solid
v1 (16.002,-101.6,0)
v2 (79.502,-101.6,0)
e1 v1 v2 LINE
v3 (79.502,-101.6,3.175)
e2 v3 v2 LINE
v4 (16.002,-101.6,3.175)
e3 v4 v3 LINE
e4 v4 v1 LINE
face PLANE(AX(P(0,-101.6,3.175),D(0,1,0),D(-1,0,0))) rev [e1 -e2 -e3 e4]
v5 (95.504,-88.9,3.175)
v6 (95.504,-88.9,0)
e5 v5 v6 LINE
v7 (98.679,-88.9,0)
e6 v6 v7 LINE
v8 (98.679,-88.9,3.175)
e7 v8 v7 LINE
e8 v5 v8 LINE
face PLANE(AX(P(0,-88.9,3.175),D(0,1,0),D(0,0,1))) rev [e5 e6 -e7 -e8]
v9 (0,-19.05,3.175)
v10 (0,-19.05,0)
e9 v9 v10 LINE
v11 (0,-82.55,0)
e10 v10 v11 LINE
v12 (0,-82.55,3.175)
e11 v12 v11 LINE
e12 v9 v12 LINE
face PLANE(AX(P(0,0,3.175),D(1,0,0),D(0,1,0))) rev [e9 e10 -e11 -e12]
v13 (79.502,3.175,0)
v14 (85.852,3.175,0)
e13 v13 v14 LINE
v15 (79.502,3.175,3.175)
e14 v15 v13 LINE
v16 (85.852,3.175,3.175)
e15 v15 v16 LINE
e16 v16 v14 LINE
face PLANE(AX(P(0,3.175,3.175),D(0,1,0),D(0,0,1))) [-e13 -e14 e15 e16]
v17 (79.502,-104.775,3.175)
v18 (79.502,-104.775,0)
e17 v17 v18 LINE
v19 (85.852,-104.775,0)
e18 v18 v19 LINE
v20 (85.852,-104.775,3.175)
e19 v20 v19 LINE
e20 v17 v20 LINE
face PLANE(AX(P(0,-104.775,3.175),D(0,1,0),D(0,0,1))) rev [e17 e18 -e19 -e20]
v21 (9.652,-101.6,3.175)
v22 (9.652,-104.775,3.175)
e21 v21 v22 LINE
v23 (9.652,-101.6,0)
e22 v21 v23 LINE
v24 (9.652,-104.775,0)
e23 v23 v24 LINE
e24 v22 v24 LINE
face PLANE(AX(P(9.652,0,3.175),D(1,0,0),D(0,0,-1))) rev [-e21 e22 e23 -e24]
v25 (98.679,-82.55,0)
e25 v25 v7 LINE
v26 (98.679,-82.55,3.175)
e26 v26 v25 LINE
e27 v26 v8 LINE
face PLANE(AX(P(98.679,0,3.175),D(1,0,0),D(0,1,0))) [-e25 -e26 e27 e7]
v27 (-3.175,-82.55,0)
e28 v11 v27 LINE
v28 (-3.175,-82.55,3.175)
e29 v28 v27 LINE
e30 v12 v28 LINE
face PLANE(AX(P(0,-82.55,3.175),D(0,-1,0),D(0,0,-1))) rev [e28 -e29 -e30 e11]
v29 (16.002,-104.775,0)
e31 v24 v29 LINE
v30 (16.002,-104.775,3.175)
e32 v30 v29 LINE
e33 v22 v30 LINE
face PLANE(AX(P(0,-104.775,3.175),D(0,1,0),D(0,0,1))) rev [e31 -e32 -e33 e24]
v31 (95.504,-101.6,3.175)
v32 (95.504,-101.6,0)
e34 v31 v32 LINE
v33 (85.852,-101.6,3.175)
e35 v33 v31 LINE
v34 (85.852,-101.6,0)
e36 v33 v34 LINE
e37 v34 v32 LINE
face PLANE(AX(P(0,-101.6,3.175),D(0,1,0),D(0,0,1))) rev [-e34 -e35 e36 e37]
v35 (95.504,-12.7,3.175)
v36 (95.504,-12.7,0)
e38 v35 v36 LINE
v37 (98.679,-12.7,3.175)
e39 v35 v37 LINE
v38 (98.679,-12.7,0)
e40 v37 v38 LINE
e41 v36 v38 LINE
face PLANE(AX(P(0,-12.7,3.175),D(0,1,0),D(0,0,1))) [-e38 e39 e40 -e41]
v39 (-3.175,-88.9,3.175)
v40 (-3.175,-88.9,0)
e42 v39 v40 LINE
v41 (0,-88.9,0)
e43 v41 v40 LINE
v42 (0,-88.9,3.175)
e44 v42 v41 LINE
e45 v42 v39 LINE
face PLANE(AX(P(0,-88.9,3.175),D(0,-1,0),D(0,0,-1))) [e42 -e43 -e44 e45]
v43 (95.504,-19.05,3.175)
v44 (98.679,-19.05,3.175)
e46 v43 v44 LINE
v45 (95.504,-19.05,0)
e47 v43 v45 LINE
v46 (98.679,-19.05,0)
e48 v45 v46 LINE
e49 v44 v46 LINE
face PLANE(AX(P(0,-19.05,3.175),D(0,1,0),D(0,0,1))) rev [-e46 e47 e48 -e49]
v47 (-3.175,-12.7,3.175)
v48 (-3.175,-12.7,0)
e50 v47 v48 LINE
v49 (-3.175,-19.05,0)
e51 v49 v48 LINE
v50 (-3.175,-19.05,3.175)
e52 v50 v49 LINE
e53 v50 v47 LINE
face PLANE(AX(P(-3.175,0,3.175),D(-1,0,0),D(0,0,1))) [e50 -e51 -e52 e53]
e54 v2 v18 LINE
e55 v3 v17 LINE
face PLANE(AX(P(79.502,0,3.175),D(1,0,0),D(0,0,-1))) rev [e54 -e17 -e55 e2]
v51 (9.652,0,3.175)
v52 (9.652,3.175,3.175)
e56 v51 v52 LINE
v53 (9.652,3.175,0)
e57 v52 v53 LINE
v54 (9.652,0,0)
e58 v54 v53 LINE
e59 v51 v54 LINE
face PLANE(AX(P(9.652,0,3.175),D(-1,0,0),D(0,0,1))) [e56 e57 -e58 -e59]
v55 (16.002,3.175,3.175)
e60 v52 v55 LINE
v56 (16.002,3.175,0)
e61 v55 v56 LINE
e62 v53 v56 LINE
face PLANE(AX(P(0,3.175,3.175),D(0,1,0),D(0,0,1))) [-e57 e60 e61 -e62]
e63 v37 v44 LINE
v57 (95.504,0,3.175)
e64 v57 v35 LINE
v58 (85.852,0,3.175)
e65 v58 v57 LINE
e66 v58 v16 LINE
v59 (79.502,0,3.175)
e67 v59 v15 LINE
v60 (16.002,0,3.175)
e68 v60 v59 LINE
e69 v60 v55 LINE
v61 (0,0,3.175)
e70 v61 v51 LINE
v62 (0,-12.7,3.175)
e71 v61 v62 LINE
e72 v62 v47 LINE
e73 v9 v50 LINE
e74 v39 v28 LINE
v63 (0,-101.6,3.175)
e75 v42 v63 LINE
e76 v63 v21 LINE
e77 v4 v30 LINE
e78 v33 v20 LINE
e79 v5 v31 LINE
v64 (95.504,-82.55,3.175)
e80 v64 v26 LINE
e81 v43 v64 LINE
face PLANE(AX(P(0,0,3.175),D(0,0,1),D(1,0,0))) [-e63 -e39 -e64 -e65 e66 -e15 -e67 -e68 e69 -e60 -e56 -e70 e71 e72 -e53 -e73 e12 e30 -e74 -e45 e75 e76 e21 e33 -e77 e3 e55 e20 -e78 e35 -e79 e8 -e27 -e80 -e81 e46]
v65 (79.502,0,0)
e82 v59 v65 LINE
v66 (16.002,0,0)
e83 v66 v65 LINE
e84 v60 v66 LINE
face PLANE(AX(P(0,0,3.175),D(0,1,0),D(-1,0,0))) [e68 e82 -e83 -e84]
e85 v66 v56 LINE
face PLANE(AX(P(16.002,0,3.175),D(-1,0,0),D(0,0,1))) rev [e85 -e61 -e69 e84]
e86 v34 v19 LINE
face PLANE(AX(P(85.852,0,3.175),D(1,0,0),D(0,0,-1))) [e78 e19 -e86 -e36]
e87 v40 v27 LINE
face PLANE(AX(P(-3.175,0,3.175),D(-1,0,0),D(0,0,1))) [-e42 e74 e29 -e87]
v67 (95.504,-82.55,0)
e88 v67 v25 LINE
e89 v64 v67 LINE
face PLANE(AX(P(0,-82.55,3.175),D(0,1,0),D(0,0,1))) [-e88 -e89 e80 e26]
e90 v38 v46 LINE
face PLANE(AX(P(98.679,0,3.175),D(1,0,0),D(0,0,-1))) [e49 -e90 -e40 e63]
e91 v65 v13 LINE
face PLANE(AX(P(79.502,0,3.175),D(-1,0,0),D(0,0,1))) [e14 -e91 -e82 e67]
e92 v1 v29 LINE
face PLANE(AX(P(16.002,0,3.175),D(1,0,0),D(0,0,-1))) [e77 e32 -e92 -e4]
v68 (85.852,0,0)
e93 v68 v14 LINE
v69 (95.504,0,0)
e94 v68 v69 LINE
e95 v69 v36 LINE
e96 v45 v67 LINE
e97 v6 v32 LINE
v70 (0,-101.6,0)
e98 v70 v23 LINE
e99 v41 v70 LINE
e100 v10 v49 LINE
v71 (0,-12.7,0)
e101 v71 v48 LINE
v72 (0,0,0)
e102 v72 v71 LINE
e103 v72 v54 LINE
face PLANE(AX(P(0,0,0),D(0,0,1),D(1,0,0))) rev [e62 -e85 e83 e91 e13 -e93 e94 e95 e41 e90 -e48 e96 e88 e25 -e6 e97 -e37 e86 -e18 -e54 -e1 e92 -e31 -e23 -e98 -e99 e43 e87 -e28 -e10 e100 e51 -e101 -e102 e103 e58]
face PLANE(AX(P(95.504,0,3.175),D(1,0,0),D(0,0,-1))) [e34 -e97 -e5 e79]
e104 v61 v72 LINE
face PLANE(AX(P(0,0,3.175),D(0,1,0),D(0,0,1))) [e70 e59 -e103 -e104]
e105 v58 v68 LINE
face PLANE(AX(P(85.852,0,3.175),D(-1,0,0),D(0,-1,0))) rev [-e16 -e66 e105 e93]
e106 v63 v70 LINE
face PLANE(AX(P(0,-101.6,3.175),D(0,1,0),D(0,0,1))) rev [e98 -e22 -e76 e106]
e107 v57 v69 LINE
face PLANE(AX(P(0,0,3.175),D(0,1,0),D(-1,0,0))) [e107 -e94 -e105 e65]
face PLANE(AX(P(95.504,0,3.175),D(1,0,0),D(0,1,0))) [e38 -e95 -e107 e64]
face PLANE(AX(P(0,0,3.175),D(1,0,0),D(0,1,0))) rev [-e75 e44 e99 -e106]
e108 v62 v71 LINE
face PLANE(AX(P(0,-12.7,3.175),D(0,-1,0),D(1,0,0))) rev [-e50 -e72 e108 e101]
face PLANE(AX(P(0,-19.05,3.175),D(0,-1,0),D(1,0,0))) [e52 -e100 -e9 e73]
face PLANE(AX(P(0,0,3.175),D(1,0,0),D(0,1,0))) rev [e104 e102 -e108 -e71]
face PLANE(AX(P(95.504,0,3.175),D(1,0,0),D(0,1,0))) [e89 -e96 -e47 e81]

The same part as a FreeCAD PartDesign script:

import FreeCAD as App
import Part
import Sketcher

V = App.Vector
Q = App.Units.Quantity


def add_polygon(sketch, points):
    """Adds a closed chain of lines whose ends are joined by coincident constraints."""
    first, n = sketch.GeometryCount, len(points)
    for a, b in zip(points, points[1:] + points[:1]):
        sketch.addGeometry(Part.LineSegment(App.Vector(*a, 0), App.Vector(*b, 0)), False)
    for i in range(n):
        sketch.addConstraint(Sketcher.Constraint("Coincident", first + i, 2, first + (i + 1) % n, 1))

doc = App.newDocument("Part")
body = doc.addObject("PartDesign::Body", "Body")

# Sketch on XY plane
sketch1 = body.newObject("Sketcher::SketchObject", "Sketch")
sketch1.AttachmentSupport = (doc.getObject("XY_Plane"), [""])
sketch1.MapMode = "FlatFace"
add_polygon(sketch1, [(79.5, 0), (16, 0), (16, 3.2), (9.7, 3.2), (9.7, 0), (0, 0), (0, -12.7), (-3.2, -12.7), (-3.2, -19.1), (0, -19.1), (0, -82.5), (-3.2, -82.5), (-3.2, -88.9), (0, -88.9), (0, -101.6), (9.7, -101.6), (9.7, -104.8), (16, -104.8), (16, -101.6), (79.5, -101.6), (79.5, -104.8), (85.9, -104.8), (85.9, -101.6), (95.5, -101.6), (95.5, -88.9), (98.7, -88.9), (98.7, -82.5), (95.5, -82.5), (95.5, -19.1), (98.7, -19.1), (98.7, -12.7), (95.5, -12.7), (95.5, 0), (85.9, 0), (85.9, 3.2), (79.5, 3.2)])  # lines 0-35
sketch1.addConstraint([
    Sketcher.Constraint("Horizontal", 0),
    Sketcher.Constraint("Vertical", 1),
    Sketcher.Constraint("Horizontal", 2),
    Sketcher.Constraint("Vertical", 3),
    Sketcher.Constraint("Horizontal", 4),
    Sketcher.Constraint("Vertical", 5),
    Sketcher.Constraint("Horizontal", 6),
    Sketcher.Constraint("Vertical", 7),
    Sketcher.Constraint("Horizontal", 8),
    Sketcher.Constraint("Vertical", 9),
    Sketcher.Constraint("Horizontal", 10),
    Sketcher.Constraint("Vertical", 11),
    Sketcher.Constraint("Horizontal", 12),
    Sketcher.Constraint("Vertical", 13),
    Sketcher.Constraint("Horizontal", 14),
    Sketcher.Constraint("Vertical", 15),
    Sketcher.Constraint("Horizontal", 16),
    Sketcher.Constraint("Vertical", 17),
    Sketcher.Constraint("Horizontal", 18),
    Sketcher.Constraint("Vertical", 19),
    Sketcher.Constraint("Horizontal", 20),
    Sketcher.Constraint("Vertical", 21),
    Sketcher.Constraint("Horizontal", 22),
    Sketcher.Constraint("Vertical", 23),
    Sketcher.Constraint("Horizontal", 24),
    Sketcher.Constraint("Vertical", 25),
    Sketcher.Constraint("Horizontal", 26),
    Sketcher.Constraint("Vertical", 27),
    Sketcher.Constraint("Horizontal", 28),
    Sketcher.Constraint("Vertical", 29),
    Sketcher.Constraint("Horizontal", 30),
    Sketcher.Constraint("Vertical", 31),
    Sketcher.Constraint("Horizontal", 32),
    Sketcher.Constraint("Vertical", 33),
    Sketcher.Constraint("Horizontal", 34),
    Sketcher.Constraint("Vertical", 35),
    Sketcher.Constraint("Coincident", 4, 2, -1, 1),
    Sketcher.Constraint("PointOnObject", 0, 2, -1),
    Sketcher.Constraint("PointOnObject", 8, 2, -2),
    Sketcher.Constraint("PointOnObject", 12, 2, -2),
    Sketcher.Constraint("PointOnObject", 31, 2, -1),
    Sketcher.Constraint("Horizontal", 14, 2, 17, 2),
    Sketcher.Constraint("Horizontal", 16, 2, 19, 2),
    Sketcher.Constraint("Horizontal", 18, 2, 21, 2),
    Sketcher.Constraint("Horizontal", 12, 2, 23, 2),
    Sketcher.Constraint("Horizontal", 10, 2, 25, 2),
    Sketcher.Constraint("Horizontal", 8, 2, 27, 2),
    Sketcher.Constraint("Horizontal", 6, 2, 29, 2),
    Sketcher.Constraint("Horizontal", 2, 2, 33, 2),
    Sketcher.Constraint("Vertical", 7, 2, 10, 2),
    Sketcher.Constraint("Vertical", 3, 2, 14, 2),
    Sketcher.Constraint("Vertical", 1, 2, 16, 2),
    Sketcher.Constraint("Vertical", 23, 2, 26, 2),
    Sketcher.Constraint("Vertical", 25, 2, 28, 2),
    Sketcher.Constraint("Vertical", 27, 2, 30, 2),
    Sketcher.Constraint("Vertical", 21, 2, 32, 2),
    Sketcher.Constraint("Vertical", 19, 2, 34, 2),
    Sketcher.Constraint("Equal", 16, 20),
    Sketcher.Constraint("Equal", 14, 22),
    Sketcher.Constraint("Equal", 12, 24),
    Sketcher.Constraint("Equal", 30, 1),
    Sketcher.Constraint("Equal", 34, 7),
    Sketcher.Constraint("Equal", 18, 9),
    Sketcher.Constraint("Equal", 7, 11),
    Sketcher.Constraint("Equal", 5, 13),
    Sketcher.Constraint("Equal", 3, 15),
    Sketcher.Constraint("DistanceX", 0, 2, 0, 1, Q("2.5 in")),
    Sketcher.Constraint("DistanceY", 5, 2, 5, 1, Q("0.5 in")),
    Sketcher.Constraint("DistanceY", 13, 2, -1, 1, Q("4 in")),
    Sketcher.Constraint("DistanceX", 4, 2, 4, 1, Q("0.38 in")),
    Sketcher.Constraint("DistanceX", 6, 2, 6, 1, Q("0.125 in")),
])
pad1 = body.newObject("PartDesign::Pad", "Pad")
pad1.Profile = sketch1
pad1.Length = Q("0.125 in")

doc.recompute()
